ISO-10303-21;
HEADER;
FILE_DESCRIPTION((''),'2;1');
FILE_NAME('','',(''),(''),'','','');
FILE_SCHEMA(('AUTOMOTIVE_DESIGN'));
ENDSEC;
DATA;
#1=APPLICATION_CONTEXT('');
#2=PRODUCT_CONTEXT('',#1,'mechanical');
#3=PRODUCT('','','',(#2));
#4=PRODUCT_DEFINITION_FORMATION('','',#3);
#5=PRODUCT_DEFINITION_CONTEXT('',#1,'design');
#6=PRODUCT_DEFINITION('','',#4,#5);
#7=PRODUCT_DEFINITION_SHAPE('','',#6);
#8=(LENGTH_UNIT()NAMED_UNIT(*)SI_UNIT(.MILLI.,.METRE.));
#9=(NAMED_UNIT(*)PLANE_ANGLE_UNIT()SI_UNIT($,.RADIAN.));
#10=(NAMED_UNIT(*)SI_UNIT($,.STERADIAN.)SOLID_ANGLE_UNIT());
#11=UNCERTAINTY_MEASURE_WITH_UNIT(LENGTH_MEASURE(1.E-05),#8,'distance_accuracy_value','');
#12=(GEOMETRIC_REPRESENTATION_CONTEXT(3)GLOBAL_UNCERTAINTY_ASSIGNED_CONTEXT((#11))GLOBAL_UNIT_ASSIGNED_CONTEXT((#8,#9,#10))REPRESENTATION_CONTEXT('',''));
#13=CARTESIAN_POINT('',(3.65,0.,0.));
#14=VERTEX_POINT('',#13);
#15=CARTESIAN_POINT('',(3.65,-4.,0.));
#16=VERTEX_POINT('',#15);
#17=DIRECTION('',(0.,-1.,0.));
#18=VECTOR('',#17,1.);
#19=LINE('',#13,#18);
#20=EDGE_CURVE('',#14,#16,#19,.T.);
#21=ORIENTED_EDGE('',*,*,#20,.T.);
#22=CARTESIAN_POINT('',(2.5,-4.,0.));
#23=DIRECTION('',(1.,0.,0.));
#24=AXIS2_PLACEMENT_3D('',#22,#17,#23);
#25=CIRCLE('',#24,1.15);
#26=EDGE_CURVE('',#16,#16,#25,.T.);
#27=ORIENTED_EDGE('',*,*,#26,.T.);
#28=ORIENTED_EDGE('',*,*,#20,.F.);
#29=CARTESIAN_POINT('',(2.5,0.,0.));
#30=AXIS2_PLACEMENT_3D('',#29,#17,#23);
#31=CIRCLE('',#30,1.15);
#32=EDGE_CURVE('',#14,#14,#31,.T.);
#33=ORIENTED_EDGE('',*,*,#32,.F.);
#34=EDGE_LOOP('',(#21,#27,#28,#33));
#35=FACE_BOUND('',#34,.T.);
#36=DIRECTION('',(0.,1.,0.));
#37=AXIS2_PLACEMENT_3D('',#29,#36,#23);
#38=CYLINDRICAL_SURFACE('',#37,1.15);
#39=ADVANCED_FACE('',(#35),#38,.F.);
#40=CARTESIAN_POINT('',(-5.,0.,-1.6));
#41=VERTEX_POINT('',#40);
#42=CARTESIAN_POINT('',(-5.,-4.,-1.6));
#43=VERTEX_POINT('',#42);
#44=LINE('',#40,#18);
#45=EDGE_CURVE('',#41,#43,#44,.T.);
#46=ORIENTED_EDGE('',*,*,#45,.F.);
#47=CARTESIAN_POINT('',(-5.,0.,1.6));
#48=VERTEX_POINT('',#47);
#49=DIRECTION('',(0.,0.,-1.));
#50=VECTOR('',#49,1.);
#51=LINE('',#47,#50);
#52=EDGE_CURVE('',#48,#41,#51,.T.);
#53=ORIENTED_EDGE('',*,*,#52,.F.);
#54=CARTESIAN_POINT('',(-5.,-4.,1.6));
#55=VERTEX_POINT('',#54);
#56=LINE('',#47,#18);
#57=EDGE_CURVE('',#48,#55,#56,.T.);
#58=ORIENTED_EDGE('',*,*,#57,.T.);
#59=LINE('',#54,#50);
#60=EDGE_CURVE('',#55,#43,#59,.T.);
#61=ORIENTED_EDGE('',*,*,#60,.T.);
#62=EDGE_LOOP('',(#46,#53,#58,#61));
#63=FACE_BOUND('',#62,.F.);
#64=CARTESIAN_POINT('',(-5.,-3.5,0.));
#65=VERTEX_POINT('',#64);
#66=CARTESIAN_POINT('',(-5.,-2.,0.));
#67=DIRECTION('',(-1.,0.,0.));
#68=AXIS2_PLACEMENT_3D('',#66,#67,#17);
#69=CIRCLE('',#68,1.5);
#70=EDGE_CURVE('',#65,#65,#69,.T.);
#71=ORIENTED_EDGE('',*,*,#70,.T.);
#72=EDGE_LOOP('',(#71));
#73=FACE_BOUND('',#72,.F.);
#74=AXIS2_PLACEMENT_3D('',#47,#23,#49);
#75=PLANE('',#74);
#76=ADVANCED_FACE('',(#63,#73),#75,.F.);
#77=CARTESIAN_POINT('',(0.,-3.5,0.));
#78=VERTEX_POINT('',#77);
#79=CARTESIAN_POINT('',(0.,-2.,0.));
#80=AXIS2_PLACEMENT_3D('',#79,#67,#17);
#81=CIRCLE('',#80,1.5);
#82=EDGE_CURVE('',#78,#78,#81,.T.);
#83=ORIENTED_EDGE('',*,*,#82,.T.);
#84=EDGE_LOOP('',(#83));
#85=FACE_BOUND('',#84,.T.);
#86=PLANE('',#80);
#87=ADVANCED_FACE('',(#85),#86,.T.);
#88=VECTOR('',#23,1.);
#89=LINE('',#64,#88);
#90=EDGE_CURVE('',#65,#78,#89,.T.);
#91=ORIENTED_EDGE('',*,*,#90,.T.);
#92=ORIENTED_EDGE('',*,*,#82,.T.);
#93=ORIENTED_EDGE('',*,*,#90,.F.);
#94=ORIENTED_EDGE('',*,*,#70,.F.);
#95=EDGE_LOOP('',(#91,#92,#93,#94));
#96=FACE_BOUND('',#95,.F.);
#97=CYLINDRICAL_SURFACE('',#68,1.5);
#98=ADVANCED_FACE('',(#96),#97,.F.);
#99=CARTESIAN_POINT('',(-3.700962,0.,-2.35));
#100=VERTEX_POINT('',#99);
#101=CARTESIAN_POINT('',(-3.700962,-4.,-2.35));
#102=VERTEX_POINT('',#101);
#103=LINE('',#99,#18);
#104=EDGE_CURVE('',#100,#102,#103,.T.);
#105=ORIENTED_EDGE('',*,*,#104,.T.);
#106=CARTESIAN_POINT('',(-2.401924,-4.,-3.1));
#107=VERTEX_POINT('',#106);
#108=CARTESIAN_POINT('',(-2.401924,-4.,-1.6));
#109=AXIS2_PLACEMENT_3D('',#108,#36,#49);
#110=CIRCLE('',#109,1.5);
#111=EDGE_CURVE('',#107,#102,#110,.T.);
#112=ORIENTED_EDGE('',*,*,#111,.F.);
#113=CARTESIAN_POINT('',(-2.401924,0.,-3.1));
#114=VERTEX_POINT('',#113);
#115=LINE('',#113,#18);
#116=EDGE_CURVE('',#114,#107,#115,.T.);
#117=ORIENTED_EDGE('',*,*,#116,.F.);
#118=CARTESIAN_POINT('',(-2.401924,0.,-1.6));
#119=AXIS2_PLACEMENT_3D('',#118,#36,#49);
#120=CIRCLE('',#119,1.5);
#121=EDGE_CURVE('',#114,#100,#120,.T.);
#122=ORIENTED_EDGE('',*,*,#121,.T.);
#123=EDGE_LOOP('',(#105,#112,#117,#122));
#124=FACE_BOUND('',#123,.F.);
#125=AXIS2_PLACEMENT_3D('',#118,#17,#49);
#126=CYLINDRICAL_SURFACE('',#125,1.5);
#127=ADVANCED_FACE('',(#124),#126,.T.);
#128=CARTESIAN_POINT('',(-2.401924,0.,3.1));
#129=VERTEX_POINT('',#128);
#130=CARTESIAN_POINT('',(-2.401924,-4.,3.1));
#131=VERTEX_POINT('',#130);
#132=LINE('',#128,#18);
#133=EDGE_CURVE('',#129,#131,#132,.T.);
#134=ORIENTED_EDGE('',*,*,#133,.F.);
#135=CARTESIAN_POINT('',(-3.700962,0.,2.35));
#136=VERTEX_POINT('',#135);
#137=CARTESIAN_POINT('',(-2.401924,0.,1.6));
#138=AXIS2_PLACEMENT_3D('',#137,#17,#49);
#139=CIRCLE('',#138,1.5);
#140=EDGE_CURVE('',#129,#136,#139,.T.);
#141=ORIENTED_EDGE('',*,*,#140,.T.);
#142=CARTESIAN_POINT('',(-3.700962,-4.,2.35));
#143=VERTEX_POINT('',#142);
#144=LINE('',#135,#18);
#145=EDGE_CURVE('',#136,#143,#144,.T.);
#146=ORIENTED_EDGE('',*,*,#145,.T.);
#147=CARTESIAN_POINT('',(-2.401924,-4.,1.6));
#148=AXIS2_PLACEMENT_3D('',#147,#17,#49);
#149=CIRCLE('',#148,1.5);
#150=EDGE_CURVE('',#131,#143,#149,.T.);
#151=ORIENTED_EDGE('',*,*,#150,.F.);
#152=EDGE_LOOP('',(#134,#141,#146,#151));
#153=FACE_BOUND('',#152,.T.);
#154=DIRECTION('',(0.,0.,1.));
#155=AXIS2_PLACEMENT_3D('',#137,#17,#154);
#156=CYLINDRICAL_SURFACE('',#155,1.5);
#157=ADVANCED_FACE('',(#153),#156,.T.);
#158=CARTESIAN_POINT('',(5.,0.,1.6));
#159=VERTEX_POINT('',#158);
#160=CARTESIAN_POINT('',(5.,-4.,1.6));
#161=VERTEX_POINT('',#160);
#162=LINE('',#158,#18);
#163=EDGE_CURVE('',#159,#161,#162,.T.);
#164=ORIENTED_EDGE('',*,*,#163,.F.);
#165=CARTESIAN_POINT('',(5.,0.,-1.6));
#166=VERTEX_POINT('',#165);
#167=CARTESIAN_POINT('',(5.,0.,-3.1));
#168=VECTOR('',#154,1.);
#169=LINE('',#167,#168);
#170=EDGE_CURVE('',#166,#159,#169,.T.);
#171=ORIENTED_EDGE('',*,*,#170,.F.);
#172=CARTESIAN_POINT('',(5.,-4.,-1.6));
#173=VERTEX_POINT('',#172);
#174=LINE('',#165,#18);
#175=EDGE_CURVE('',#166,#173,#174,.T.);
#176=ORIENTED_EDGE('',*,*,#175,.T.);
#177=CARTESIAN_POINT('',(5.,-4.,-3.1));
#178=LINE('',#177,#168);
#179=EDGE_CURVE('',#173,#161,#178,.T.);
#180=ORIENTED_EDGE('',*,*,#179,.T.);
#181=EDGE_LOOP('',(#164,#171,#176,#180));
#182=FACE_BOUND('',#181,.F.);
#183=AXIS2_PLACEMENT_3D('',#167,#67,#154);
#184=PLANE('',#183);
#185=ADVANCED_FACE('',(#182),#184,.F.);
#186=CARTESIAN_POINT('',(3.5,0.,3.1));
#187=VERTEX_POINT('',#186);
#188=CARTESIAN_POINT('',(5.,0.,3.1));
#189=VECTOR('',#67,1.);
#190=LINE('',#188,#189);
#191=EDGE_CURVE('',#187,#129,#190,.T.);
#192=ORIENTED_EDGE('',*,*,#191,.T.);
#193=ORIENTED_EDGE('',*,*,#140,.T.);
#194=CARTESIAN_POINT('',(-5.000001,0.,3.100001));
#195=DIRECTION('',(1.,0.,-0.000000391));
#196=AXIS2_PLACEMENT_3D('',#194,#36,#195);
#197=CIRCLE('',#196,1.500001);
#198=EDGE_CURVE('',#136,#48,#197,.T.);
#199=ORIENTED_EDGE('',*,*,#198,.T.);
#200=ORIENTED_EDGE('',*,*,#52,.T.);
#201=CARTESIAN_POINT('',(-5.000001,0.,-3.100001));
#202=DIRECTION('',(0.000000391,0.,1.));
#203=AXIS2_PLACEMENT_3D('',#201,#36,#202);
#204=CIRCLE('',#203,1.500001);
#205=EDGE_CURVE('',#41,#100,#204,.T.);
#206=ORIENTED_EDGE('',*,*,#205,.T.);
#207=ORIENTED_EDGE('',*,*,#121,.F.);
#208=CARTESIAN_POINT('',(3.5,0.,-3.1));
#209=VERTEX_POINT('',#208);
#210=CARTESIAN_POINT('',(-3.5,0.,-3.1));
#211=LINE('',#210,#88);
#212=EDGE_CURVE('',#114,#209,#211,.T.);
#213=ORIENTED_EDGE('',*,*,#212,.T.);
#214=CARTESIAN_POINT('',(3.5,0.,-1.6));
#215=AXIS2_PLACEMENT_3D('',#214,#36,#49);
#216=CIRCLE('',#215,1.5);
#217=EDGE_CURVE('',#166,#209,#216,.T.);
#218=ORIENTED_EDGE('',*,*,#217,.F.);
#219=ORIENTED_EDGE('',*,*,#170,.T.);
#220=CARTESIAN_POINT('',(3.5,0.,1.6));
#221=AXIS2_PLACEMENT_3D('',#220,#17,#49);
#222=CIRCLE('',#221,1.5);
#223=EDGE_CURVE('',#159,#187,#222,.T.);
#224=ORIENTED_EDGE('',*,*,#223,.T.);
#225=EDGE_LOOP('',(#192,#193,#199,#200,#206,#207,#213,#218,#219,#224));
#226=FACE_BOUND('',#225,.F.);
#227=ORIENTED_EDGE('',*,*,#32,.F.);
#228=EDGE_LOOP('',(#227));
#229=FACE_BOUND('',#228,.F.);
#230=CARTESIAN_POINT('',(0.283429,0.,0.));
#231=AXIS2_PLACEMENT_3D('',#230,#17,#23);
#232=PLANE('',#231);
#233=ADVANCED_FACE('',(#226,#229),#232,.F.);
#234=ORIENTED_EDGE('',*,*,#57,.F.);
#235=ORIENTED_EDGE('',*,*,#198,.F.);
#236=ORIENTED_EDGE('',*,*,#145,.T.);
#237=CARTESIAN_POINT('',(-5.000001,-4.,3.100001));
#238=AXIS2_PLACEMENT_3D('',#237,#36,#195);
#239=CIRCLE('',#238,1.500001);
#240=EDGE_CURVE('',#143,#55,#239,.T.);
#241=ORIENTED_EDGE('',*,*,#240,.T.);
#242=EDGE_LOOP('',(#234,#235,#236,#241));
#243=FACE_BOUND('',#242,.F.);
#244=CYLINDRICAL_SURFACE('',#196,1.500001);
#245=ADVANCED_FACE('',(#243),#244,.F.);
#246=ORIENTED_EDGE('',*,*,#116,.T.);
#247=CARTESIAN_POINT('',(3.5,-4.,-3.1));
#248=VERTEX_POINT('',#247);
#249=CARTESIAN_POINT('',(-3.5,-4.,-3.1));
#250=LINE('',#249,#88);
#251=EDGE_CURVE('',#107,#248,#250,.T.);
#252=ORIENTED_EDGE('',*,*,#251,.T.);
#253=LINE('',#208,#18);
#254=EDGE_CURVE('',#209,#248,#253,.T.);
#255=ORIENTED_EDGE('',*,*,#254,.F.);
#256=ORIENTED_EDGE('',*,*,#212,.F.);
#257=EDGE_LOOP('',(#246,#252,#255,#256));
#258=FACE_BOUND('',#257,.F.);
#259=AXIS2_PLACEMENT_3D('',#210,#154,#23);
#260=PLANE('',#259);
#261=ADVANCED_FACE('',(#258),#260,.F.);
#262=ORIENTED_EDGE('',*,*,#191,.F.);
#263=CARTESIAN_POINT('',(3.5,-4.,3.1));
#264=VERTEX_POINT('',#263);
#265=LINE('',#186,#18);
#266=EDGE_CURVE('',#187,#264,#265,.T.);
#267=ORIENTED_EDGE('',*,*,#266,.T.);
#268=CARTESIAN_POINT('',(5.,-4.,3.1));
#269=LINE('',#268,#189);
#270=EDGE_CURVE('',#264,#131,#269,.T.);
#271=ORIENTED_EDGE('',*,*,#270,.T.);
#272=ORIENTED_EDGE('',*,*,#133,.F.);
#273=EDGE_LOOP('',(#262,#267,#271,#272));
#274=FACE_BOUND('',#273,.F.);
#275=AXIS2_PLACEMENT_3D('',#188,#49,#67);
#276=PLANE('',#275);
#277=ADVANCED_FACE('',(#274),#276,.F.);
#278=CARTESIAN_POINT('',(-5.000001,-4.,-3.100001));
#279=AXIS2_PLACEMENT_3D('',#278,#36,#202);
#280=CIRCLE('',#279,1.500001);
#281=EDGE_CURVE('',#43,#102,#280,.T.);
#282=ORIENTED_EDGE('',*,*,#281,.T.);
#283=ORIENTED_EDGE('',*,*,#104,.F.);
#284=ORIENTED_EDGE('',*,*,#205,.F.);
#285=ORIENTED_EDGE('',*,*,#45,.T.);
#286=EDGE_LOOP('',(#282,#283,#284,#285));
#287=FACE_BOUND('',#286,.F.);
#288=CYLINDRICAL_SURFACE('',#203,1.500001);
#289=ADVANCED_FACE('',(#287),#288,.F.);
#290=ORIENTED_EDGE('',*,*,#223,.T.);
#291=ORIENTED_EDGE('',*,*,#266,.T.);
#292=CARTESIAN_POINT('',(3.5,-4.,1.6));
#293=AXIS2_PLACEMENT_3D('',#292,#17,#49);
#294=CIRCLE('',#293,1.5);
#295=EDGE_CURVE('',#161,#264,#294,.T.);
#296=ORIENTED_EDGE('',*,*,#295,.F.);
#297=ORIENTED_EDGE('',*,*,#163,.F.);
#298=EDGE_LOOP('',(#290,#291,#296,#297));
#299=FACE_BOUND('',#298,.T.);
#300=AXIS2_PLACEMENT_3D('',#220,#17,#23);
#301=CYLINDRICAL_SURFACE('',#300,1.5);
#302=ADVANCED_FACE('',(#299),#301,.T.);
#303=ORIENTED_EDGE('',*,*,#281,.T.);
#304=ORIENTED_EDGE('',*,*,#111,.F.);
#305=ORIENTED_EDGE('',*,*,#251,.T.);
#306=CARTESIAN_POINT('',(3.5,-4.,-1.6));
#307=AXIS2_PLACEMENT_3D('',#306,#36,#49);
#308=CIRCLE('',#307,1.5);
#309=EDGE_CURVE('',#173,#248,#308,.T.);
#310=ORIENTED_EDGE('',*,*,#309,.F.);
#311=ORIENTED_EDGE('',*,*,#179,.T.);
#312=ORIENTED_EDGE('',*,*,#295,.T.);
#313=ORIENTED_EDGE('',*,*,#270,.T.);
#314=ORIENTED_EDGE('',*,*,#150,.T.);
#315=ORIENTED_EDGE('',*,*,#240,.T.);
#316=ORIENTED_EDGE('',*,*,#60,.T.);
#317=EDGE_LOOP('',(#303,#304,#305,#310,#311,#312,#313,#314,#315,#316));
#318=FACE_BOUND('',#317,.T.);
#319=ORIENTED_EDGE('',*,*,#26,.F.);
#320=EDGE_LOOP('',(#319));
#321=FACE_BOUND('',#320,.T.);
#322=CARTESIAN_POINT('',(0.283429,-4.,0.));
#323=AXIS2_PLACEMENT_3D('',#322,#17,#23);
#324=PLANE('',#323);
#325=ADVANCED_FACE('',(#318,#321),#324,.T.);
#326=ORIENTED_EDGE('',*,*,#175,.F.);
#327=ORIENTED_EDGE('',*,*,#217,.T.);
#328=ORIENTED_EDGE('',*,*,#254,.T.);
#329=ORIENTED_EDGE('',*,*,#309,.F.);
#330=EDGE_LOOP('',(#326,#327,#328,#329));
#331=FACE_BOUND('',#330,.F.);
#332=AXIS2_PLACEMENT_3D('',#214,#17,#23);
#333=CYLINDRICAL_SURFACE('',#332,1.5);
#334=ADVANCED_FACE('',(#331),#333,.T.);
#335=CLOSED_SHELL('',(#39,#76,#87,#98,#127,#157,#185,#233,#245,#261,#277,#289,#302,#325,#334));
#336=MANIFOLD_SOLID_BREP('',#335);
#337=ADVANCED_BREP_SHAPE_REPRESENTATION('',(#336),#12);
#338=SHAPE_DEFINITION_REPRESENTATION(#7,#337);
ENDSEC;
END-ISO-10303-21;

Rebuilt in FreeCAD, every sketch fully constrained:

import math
import FreeCAD as App
import Part
import Sketcher

V = App.Vector


def edges_at(feature, points):
    """Names of the edges that pass closest to the given points."""
    edges = feature.Shape.Edges
    near = lambda p: min(range(len(edges)), key=lambda i: edges[i].distToShape(Part.Vertex(*p))[0])
    return sorted({f"Edge{near(p) + 1}" for p in points})

doc = App.newDocument("Part")
body = doc.addObject("PartDesign::Body", "Body")

sketch1 = body.newObject("Sketcher::SketchObject", "Sketch")
sketch1.AttachmentSupport = (doc.getObject("XZ_Plane"), [""])
sketch1.MapMode = "FlatFace"
sketch1.addGeometry([
    Part.LineSegment(V(5, -3.1, 0), V(5, 3.1, 0)),
    Part.LineSegment(V(5, 3.1, 0), V(-3.5, 3.1, 0)),
    Part.ArcOfCircle(Part.Circle(V(-5, 3.1, 0), V(0, 0, 1), 1.5), math.radians(-90), math.radians(0)),
    Part.LineSegment(V(-5, 1.6, 0), V(-5, -1.6, 0)),
    Part.ArcOfCircle(Part.Circle(V(-5, -3.1, 0), V(0, 0, 1), 1.5), math.radians(0), math.radians(90)),
    Part.LineSegment(V(-3.5, -3.1, 0), V(5, -3.1, 0)),
    Part.Circle(V(2.5, 0, 0), V(0, 0, 1), 1.1),
], False)
sketch1.addConstraint([
    Sketcher.Constraint("Coincident", 0, 2, 1, 1),
    Sketcher.Constraint("Coincident", 1, 2, 2, 2),
    Sketcher.Constraint("Coincident", 2, 1, 3, 1),
    Sketcher.Constraint("Coincident", 3, 2, 4, 2),
    Sketcher.Constraint("Coincident", 4, 1, 5, 1),
    Sketcher.Constraint("Coincident", 5, 2, 0, 1),
    Sketcher.Constraint("Vertical", 0),
    Sketcher.Constraint("Horizontal", 1),
    Sketcher.Constraint("Vertical", 3),
    Sketcher.Constraint("Horizontal", 5),
    Sketcher.Constraint("Equal", 2, 4),
    Sketcher.Constraint("Symmetric", 2, 3, 4, 3, -1),
    Sketcher.Constraint("PointOnObject", 6, 3, -1),
    Sketcher.Constraint("Horizontal", 2, 3, 0, 2),
    Sketcher.Constraint("Vertical", 4, 3, 2, 1),
    Sketcher.Constraint("Diameter", 6, 2.3),
    Sketcher.Constraint("Radius", 2, 1.500001),
    Sketcher.Constraint("DistanceX", 1, 2, 1, 1, 8.5),
    Sketcher.Constraint("DistanceY", 0, 1, 0, 2, 6.2),
    Sketcher.Constraint("DistanceY", 3, 2, 3, 1, 3.2),
    Sketcher.Constraint("DistanceX", 2, 3, -1, 1, 5.000001),
    Sketcher.Constraint("DistanceX", 1, 2, 6, 3, 6.0),
])
pad1 = body.newObject("PartDesign::Pad", "Pad")
pad1.Profile = sketch1
pad1.Length = 4

sketch2 = body.newObject("Sketcher::SketchObject", "Sketch001")
sketch2.AttachmentSupport = (doc.getObject("YZ_Plane"), [""])
sketch2.MapMode = "FlatFace"
sketch2.AttachmentOffset = App.Placement(V(0, 0, -5), App.Rotation())
sketch2.addGeometry(Part.Circle(V(-2, 0, 0), V(0, 0, 1), 1.5), False)
sketch2.addConstraint([
    Sketcher.Constraint("PointOnObject", 0, 3, -1),
    Sketcher.Constraint("Diameter", 0, 3.0),
    Sketcher.Constraint("DistanceX", 0, 3, -1, 1, 2.0),
])
pocket1 = body.newObject("PartDesign::Pocket", "Pocket")
pocket1.Profile = sketch2
pocket1.Length = 5
pocket1.Reversed = True
doc.recompute()

fillet = body.newObject("PartDesign::Fillet", "Fillet")
fillet.Base = (pocket1, edges_at(pocket1, [
    (-3.5, -2, 3.1),
    (-3.5, -2, -3.1),
    (5, -2, 3.1),
    (5, -2, -3.1),
]))
fillet.Radius = 1.5

doc.recompute()
